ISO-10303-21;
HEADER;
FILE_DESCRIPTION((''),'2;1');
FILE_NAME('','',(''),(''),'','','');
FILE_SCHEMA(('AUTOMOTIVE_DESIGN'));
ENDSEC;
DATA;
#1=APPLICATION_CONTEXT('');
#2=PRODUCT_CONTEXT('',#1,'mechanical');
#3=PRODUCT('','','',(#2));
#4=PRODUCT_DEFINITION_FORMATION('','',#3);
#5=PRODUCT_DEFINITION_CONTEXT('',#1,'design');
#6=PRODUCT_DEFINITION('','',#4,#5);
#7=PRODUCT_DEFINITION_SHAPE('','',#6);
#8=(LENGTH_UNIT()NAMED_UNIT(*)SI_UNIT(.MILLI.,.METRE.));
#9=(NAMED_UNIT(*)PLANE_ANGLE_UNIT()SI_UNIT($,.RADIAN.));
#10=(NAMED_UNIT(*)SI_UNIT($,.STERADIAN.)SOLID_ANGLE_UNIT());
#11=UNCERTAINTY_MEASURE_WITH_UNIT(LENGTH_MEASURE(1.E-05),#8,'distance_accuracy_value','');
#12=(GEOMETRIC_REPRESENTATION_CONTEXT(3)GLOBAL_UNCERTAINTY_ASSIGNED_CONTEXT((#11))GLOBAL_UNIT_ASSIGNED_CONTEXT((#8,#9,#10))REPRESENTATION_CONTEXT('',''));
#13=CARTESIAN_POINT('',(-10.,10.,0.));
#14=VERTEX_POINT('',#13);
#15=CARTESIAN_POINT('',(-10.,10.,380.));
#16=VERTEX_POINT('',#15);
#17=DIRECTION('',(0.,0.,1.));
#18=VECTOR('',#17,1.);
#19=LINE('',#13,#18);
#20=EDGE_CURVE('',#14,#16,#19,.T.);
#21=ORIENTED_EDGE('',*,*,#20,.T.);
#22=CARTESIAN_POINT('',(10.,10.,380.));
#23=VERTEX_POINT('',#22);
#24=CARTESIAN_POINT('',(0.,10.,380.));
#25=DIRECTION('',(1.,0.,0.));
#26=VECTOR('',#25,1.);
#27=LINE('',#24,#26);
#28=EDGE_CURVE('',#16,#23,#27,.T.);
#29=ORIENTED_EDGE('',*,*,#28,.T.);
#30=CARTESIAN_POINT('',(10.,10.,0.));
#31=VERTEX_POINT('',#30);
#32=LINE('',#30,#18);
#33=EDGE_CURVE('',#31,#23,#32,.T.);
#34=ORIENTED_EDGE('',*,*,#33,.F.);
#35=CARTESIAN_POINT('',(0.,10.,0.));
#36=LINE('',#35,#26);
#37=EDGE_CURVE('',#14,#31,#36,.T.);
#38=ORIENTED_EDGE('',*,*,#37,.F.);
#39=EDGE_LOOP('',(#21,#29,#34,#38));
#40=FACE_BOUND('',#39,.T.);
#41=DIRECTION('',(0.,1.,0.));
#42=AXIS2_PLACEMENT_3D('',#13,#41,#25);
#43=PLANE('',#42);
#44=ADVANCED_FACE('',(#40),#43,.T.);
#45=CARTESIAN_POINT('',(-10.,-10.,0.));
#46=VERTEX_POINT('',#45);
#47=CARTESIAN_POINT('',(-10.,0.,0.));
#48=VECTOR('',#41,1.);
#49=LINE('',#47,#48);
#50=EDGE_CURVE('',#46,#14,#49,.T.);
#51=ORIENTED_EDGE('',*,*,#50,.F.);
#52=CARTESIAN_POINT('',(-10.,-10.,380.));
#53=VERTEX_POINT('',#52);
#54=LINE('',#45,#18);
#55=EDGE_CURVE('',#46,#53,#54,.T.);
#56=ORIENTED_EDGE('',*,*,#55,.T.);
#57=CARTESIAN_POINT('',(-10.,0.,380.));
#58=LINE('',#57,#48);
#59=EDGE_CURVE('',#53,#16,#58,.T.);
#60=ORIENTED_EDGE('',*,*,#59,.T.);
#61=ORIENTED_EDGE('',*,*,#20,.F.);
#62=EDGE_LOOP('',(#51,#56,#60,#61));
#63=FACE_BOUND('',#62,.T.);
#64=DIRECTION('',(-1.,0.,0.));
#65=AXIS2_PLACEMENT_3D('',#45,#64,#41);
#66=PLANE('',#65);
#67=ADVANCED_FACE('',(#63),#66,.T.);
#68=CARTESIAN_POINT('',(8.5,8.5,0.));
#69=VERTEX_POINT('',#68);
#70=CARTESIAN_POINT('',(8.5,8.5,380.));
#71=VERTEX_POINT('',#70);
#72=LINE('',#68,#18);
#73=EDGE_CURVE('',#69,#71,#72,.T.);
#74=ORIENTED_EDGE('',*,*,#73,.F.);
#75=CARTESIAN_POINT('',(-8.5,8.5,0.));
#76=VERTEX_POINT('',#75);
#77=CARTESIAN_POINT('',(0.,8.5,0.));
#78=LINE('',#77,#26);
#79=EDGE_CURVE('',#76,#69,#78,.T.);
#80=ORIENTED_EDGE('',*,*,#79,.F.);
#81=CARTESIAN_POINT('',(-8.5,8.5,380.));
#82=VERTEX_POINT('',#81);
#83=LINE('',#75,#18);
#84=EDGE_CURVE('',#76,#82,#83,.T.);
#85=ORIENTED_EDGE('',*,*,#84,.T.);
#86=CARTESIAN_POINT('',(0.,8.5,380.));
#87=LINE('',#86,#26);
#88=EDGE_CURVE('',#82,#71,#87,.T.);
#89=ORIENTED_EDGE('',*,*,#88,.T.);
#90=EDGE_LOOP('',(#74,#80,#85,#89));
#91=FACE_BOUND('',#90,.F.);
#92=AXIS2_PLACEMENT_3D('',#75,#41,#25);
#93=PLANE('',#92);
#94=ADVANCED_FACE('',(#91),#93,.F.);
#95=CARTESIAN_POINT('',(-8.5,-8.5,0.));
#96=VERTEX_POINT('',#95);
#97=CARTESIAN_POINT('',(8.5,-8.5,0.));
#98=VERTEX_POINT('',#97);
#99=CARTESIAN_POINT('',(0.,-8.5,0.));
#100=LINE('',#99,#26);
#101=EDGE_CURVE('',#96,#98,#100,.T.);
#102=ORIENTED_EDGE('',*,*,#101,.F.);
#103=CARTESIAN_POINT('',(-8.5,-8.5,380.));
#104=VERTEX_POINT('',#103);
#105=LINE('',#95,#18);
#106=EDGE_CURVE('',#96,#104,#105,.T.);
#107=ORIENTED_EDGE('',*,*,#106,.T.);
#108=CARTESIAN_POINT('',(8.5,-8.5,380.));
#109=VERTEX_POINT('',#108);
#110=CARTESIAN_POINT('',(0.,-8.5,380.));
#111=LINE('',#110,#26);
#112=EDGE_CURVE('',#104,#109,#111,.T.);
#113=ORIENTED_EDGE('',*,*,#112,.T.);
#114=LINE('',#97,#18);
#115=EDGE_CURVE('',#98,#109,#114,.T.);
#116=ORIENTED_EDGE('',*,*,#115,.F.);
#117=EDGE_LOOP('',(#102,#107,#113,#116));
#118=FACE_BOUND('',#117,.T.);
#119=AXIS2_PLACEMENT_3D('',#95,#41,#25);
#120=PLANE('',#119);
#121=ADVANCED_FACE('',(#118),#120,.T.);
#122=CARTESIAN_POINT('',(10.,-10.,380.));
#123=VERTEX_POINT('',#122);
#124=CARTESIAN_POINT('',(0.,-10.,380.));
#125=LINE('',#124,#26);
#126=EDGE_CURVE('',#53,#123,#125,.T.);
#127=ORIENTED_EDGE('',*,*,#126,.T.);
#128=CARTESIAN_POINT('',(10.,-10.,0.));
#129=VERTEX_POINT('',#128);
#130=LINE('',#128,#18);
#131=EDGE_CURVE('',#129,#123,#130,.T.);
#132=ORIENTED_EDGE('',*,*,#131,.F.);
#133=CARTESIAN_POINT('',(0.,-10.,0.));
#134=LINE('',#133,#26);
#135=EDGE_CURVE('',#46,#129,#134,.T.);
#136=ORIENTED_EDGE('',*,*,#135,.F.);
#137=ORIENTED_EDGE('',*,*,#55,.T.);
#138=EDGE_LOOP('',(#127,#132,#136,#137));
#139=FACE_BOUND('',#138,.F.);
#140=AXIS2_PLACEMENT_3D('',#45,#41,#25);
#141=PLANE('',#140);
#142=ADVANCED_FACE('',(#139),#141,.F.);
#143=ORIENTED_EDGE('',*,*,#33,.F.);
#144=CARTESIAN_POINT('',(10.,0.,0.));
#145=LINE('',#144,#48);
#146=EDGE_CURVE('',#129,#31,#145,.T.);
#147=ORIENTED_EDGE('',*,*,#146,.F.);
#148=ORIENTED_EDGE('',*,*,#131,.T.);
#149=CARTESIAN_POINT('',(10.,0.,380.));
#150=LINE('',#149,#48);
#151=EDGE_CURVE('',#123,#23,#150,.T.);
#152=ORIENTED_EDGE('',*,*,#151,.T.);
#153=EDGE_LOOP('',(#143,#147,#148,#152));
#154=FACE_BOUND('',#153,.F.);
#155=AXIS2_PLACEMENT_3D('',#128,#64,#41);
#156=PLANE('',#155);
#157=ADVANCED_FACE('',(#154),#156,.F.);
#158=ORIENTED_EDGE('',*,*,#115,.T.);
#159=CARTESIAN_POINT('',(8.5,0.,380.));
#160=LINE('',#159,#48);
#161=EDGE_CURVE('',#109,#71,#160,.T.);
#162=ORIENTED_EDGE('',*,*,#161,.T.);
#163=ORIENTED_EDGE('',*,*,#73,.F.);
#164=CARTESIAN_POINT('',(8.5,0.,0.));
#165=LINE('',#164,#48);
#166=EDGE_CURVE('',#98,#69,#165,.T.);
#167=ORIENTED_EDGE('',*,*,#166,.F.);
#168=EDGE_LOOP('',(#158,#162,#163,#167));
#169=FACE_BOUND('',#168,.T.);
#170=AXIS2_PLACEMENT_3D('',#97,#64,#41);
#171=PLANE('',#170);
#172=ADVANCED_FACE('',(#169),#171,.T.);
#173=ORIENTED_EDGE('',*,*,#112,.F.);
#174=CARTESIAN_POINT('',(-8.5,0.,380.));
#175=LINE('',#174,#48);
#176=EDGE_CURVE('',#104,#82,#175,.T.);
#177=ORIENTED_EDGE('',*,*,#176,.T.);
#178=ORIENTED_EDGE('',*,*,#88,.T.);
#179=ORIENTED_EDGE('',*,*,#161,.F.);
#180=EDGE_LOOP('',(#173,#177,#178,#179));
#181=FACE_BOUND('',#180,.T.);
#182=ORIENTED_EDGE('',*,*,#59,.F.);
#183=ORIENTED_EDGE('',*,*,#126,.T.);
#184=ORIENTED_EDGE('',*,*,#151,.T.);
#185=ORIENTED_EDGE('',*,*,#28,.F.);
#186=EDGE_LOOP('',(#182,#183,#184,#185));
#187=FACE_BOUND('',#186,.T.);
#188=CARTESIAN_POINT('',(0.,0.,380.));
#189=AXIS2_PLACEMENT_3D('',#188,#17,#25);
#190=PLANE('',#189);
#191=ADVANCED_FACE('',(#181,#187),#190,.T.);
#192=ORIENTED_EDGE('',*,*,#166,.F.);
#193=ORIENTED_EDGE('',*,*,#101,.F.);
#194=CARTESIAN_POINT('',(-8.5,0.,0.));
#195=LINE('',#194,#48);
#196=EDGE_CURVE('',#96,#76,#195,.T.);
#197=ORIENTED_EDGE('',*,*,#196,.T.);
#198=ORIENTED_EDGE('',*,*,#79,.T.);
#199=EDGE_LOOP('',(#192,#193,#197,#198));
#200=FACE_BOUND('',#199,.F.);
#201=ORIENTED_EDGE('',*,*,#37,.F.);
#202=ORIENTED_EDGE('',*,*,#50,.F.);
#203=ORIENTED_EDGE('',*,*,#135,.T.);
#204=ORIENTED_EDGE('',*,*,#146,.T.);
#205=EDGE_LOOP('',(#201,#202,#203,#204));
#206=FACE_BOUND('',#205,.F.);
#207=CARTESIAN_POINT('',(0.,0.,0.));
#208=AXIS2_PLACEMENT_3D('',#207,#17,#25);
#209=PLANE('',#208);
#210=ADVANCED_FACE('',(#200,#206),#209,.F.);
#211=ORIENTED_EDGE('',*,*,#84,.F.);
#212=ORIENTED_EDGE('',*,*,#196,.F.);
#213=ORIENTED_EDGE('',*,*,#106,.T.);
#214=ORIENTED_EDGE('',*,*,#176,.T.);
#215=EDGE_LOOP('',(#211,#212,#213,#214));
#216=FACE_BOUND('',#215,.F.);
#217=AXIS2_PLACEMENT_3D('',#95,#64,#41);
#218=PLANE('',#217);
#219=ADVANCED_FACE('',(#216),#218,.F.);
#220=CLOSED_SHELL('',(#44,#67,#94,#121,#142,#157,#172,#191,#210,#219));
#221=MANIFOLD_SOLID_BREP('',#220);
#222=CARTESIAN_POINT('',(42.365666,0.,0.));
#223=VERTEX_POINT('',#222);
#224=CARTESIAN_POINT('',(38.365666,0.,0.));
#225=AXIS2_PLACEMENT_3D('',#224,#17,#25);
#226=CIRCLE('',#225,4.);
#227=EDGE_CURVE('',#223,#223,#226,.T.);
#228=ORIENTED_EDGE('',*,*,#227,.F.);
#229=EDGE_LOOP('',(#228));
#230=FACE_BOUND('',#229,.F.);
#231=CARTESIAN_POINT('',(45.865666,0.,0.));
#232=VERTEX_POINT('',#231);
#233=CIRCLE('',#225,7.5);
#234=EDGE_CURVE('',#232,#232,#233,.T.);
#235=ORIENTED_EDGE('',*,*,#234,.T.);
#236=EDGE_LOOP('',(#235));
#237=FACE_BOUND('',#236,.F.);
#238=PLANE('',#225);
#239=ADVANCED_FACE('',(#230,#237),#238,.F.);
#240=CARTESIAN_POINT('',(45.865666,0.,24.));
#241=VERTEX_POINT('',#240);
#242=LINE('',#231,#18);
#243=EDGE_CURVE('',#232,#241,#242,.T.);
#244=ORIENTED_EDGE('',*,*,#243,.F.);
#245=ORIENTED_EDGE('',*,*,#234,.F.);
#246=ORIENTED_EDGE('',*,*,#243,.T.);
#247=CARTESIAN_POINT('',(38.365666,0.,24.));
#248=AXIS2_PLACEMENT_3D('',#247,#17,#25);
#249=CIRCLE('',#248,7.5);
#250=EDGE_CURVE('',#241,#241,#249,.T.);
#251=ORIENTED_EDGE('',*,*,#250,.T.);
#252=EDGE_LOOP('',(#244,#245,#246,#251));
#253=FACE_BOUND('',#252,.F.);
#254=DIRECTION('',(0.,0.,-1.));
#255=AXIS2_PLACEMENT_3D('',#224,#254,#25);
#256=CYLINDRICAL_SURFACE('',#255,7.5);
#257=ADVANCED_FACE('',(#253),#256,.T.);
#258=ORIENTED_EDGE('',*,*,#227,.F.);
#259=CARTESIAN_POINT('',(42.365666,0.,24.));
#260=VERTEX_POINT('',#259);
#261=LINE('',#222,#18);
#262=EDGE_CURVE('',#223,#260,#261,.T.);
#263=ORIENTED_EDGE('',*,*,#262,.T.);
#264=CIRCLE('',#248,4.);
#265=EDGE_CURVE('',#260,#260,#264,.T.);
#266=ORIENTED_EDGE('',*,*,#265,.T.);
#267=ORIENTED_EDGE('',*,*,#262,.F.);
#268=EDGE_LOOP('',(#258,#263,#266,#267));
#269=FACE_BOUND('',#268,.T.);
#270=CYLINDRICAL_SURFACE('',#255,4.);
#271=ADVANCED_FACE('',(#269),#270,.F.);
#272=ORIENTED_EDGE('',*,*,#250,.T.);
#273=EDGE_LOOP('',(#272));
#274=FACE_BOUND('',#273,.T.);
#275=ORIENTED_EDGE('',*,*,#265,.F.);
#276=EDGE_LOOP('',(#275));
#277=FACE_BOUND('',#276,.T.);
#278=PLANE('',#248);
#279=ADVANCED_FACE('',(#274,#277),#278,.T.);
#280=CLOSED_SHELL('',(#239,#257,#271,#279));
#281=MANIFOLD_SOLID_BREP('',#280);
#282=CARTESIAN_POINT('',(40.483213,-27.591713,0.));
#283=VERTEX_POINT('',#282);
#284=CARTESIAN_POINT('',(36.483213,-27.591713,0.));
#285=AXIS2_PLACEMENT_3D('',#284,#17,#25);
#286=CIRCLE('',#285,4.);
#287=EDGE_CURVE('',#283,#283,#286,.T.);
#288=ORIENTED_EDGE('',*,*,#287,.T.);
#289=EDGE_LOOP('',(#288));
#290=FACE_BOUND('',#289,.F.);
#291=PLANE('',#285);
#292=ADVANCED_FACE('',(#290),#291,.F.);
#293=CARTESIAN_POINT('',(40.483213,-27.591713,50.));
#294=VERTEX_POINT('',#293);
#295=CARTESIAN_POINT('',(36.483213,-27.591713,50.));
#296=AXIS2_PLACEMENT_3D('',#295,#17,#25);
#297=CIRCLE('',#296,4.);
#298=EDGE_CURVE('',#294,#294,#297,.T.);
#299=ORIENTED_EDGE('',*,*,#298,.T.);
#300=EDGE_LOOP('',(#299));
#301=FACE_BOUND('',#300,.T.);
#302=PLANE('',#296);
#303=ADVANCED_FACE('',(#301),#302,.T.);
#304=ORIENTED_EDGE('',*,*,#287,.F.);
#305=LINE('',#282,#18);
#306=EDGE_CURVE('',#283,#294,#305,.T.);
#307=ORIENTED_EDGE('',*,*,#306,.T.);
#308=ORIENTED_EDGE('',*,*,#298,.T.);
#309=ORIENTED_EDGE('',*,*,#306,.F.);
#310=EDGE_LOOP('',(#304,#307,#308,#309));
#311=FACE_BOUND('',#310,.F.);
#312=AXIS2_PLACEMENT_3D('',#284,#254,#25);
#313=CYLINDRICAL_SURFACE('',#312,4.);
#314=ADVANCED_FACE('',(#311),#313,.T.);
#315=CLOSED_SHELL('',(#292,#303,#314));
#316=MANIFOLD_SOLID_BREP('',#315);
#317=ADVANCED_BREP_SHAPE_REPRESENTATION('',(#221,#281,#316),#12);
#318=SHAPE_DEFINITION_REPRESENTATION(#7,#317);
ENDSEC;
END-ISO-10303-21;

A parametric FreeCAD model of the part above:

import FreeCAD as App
import Part
import Sketcher
from FreeCAD import Vector


def add_polygon(sketch, points):
    """Adds a closed chain of lines whose ends are joined by coincident constraints."""
    first, n = sketch.GeometryCount, len(points)
    for a, b in zip(points, points[1:] + points[:1]):
        sketch.addGeometry(Part.LineSegment(App.Vector(*a, 0), App.Vector(*b, 0)), False)
    for i in range(n):
        sketch.addConstraint(Sketcher.Constraint("Coincident", first + i, 2, first + (i + 1) % n, 1))

doc = App.newDocument("Part")
params = doc.addObject("Spreadsheet::Sheet", "Params")
for row, (alias, value) in enumerate([
    ("sketch1_width", "20 mm"),
    ("sketch1_width2", "17 mm"),
    ("pad1_length", "380 mm"),
    ("sketch2_diameter", "15 mm"),
    ("sketch2_diameter2", "8 mm"),
    ("pad2_length", "24 mm"),
    ("sketch3_diameter", "8 mm"),
    ("pad3_length", "50 mm"),
], start=1):
    params.set(f"A{row}", alias)
    params.set(f"B{row}", "=" + value)
    params.setAlias(f"B{row}", alias)

body = doc.addObject("PartDesign::Body", "Body")

# Sketch on XY plane
sketch1 = doc.addObject("Sketcher::SketchObject", "Sketch")
body.addObject(sketch1)
sketch1.AttachmentSupport = (doc.XY_Plane, [""])
sketch1.MapMode = "FlatFace"
add_polygon(sketch1, [(-10, 10), (-10, -10), (10, -10), (10, 10)])  # lines 0-3
add_polygon(sketch1, [(8, -8), (-8, -8), (-8, 8), (8, 8)])  # lines 4-7
sketch1.addConstraint([
    Sketcher.Constraint("Vertical", 0),
    Sketcher.Constraint("Horizontal", 1),
    Sketcher.Constraint("Vertical", 2),
    Sketcher.Constraint("Horizontal", 3),
    Sketcher.Constraint("Horizontal", 4),
    Sketcher.Constraint("Vertical", 5),
    Sketcher.Constraint("Horizontal", 6),
    Sketcher.Constraint("Vertical", 7),
    Sketcher.Constraint("Symmetric", 0, 2, 2, 2, -1, 1),
    Sketcher.Constraint("Symmetric", 4, 2, 6, 2, -1, 1),
    Sketcher.Constraint("Equal", 3, 0),
    Sketcher.Constraint("Equal", 6, 5),
    Sketcher.Constraint("DistanceX", 1, 1, 1, 2, 20.0),
    Sketcher.Constraint("DistanceX", 4, 2, 4, 1, 17.0),
])
sketch1.setExpression("Constraints[20]", "Params.sketch1_width")
sketch1.setExpression("Constraints[21]", "Params.sketch1_width2")
pad1 = doc.addObject("PartDesign::Pad", "Pad")
body.addObject(pad1)
pad1.Profile = sketch1
pad1.setExpression("Length", "Params.pad1_length")
body2 = doc.addObject("PartDesign::Body", "Body001")

# Sketch on XY plane
sketch2 = doc.addObject("Sketcher::SketchObject", "Sketch001")
body2.addObject(sketch2)
sketch2.AttachmentSupport = (doc.getObject("XY_Plane001"), [""])
sketch2.MapMode = "FlatFace"
sketch2.addGeometry([
    Part.Circle(Vector(38.4, 0, 0), Vector(0, 0, 1), 7.5),
    Part.Circle(Vector(38.4, 0, 0), Vector(0, 0, 1), 4),
], False)
sketch2.addConstraint([
    Sketcher.Constraint("Coincident", 1, 3, 0, 3),
    Sketcher.Constraint("PointOnObject", 0, 3, -1),
    Sketcher.Constraint("Diameter", 0, 15.0),
    Sketcher.Constraint("Diameter", 1, 8.0),
    Sketcher.Constraint("DistanceX", -1, 1, 0, 3, 38.365666),
])
sketch2.setExpression("Constraints[2]", "Params.sketch2_diameter")
sketch2.setExpression("Constraints[3]", "Params.sketch2_diameter2")
pad2 = doc.addObject("PartDesign::Pad", "Pad001")
body2.addObject(pad2)
pad2.Profile = sketch2
pad2.setExpression("Length", "Params.pad2_length")
body3 = doc.addObject("PartDesign::Body", "Body002")

# Sketch on XY plane
sketch3 = doc.addObject("Sketcher::SketchObject", "Sketch002")
body3.addObject(sketch3)
sketch3.AttachmentSupport = (doc.getObject("XY_Plane002"), [""])
sketch3.MapMode = "FlatFace"
sketch3.addGeometry(Part.Circle(Vector(36.5, -27.6, 0), Vector(0, 0, 1), 4), False)
sketch3.addConstraint([
    Sketcher.Constraint("Diameter", 0, 8.0),
    Sketcher.Constraint("DistanceX", -1, 1, 0, 3, 36.483213),
    Sketcher.Constraint("DistanceY", 0, 3, -1, 1, 27.591713),
])
sketch3.setExpression("Constraints[0]", "Params.sketch3_diameter")
pad3 = doc.addObject("PartDesign::Pad", "Pad002")
body3.addObject(pad3)
pad3.Profile = sketch3
pad3.setExpression("Length", "Params.pad3_length")

doc.recompute()
